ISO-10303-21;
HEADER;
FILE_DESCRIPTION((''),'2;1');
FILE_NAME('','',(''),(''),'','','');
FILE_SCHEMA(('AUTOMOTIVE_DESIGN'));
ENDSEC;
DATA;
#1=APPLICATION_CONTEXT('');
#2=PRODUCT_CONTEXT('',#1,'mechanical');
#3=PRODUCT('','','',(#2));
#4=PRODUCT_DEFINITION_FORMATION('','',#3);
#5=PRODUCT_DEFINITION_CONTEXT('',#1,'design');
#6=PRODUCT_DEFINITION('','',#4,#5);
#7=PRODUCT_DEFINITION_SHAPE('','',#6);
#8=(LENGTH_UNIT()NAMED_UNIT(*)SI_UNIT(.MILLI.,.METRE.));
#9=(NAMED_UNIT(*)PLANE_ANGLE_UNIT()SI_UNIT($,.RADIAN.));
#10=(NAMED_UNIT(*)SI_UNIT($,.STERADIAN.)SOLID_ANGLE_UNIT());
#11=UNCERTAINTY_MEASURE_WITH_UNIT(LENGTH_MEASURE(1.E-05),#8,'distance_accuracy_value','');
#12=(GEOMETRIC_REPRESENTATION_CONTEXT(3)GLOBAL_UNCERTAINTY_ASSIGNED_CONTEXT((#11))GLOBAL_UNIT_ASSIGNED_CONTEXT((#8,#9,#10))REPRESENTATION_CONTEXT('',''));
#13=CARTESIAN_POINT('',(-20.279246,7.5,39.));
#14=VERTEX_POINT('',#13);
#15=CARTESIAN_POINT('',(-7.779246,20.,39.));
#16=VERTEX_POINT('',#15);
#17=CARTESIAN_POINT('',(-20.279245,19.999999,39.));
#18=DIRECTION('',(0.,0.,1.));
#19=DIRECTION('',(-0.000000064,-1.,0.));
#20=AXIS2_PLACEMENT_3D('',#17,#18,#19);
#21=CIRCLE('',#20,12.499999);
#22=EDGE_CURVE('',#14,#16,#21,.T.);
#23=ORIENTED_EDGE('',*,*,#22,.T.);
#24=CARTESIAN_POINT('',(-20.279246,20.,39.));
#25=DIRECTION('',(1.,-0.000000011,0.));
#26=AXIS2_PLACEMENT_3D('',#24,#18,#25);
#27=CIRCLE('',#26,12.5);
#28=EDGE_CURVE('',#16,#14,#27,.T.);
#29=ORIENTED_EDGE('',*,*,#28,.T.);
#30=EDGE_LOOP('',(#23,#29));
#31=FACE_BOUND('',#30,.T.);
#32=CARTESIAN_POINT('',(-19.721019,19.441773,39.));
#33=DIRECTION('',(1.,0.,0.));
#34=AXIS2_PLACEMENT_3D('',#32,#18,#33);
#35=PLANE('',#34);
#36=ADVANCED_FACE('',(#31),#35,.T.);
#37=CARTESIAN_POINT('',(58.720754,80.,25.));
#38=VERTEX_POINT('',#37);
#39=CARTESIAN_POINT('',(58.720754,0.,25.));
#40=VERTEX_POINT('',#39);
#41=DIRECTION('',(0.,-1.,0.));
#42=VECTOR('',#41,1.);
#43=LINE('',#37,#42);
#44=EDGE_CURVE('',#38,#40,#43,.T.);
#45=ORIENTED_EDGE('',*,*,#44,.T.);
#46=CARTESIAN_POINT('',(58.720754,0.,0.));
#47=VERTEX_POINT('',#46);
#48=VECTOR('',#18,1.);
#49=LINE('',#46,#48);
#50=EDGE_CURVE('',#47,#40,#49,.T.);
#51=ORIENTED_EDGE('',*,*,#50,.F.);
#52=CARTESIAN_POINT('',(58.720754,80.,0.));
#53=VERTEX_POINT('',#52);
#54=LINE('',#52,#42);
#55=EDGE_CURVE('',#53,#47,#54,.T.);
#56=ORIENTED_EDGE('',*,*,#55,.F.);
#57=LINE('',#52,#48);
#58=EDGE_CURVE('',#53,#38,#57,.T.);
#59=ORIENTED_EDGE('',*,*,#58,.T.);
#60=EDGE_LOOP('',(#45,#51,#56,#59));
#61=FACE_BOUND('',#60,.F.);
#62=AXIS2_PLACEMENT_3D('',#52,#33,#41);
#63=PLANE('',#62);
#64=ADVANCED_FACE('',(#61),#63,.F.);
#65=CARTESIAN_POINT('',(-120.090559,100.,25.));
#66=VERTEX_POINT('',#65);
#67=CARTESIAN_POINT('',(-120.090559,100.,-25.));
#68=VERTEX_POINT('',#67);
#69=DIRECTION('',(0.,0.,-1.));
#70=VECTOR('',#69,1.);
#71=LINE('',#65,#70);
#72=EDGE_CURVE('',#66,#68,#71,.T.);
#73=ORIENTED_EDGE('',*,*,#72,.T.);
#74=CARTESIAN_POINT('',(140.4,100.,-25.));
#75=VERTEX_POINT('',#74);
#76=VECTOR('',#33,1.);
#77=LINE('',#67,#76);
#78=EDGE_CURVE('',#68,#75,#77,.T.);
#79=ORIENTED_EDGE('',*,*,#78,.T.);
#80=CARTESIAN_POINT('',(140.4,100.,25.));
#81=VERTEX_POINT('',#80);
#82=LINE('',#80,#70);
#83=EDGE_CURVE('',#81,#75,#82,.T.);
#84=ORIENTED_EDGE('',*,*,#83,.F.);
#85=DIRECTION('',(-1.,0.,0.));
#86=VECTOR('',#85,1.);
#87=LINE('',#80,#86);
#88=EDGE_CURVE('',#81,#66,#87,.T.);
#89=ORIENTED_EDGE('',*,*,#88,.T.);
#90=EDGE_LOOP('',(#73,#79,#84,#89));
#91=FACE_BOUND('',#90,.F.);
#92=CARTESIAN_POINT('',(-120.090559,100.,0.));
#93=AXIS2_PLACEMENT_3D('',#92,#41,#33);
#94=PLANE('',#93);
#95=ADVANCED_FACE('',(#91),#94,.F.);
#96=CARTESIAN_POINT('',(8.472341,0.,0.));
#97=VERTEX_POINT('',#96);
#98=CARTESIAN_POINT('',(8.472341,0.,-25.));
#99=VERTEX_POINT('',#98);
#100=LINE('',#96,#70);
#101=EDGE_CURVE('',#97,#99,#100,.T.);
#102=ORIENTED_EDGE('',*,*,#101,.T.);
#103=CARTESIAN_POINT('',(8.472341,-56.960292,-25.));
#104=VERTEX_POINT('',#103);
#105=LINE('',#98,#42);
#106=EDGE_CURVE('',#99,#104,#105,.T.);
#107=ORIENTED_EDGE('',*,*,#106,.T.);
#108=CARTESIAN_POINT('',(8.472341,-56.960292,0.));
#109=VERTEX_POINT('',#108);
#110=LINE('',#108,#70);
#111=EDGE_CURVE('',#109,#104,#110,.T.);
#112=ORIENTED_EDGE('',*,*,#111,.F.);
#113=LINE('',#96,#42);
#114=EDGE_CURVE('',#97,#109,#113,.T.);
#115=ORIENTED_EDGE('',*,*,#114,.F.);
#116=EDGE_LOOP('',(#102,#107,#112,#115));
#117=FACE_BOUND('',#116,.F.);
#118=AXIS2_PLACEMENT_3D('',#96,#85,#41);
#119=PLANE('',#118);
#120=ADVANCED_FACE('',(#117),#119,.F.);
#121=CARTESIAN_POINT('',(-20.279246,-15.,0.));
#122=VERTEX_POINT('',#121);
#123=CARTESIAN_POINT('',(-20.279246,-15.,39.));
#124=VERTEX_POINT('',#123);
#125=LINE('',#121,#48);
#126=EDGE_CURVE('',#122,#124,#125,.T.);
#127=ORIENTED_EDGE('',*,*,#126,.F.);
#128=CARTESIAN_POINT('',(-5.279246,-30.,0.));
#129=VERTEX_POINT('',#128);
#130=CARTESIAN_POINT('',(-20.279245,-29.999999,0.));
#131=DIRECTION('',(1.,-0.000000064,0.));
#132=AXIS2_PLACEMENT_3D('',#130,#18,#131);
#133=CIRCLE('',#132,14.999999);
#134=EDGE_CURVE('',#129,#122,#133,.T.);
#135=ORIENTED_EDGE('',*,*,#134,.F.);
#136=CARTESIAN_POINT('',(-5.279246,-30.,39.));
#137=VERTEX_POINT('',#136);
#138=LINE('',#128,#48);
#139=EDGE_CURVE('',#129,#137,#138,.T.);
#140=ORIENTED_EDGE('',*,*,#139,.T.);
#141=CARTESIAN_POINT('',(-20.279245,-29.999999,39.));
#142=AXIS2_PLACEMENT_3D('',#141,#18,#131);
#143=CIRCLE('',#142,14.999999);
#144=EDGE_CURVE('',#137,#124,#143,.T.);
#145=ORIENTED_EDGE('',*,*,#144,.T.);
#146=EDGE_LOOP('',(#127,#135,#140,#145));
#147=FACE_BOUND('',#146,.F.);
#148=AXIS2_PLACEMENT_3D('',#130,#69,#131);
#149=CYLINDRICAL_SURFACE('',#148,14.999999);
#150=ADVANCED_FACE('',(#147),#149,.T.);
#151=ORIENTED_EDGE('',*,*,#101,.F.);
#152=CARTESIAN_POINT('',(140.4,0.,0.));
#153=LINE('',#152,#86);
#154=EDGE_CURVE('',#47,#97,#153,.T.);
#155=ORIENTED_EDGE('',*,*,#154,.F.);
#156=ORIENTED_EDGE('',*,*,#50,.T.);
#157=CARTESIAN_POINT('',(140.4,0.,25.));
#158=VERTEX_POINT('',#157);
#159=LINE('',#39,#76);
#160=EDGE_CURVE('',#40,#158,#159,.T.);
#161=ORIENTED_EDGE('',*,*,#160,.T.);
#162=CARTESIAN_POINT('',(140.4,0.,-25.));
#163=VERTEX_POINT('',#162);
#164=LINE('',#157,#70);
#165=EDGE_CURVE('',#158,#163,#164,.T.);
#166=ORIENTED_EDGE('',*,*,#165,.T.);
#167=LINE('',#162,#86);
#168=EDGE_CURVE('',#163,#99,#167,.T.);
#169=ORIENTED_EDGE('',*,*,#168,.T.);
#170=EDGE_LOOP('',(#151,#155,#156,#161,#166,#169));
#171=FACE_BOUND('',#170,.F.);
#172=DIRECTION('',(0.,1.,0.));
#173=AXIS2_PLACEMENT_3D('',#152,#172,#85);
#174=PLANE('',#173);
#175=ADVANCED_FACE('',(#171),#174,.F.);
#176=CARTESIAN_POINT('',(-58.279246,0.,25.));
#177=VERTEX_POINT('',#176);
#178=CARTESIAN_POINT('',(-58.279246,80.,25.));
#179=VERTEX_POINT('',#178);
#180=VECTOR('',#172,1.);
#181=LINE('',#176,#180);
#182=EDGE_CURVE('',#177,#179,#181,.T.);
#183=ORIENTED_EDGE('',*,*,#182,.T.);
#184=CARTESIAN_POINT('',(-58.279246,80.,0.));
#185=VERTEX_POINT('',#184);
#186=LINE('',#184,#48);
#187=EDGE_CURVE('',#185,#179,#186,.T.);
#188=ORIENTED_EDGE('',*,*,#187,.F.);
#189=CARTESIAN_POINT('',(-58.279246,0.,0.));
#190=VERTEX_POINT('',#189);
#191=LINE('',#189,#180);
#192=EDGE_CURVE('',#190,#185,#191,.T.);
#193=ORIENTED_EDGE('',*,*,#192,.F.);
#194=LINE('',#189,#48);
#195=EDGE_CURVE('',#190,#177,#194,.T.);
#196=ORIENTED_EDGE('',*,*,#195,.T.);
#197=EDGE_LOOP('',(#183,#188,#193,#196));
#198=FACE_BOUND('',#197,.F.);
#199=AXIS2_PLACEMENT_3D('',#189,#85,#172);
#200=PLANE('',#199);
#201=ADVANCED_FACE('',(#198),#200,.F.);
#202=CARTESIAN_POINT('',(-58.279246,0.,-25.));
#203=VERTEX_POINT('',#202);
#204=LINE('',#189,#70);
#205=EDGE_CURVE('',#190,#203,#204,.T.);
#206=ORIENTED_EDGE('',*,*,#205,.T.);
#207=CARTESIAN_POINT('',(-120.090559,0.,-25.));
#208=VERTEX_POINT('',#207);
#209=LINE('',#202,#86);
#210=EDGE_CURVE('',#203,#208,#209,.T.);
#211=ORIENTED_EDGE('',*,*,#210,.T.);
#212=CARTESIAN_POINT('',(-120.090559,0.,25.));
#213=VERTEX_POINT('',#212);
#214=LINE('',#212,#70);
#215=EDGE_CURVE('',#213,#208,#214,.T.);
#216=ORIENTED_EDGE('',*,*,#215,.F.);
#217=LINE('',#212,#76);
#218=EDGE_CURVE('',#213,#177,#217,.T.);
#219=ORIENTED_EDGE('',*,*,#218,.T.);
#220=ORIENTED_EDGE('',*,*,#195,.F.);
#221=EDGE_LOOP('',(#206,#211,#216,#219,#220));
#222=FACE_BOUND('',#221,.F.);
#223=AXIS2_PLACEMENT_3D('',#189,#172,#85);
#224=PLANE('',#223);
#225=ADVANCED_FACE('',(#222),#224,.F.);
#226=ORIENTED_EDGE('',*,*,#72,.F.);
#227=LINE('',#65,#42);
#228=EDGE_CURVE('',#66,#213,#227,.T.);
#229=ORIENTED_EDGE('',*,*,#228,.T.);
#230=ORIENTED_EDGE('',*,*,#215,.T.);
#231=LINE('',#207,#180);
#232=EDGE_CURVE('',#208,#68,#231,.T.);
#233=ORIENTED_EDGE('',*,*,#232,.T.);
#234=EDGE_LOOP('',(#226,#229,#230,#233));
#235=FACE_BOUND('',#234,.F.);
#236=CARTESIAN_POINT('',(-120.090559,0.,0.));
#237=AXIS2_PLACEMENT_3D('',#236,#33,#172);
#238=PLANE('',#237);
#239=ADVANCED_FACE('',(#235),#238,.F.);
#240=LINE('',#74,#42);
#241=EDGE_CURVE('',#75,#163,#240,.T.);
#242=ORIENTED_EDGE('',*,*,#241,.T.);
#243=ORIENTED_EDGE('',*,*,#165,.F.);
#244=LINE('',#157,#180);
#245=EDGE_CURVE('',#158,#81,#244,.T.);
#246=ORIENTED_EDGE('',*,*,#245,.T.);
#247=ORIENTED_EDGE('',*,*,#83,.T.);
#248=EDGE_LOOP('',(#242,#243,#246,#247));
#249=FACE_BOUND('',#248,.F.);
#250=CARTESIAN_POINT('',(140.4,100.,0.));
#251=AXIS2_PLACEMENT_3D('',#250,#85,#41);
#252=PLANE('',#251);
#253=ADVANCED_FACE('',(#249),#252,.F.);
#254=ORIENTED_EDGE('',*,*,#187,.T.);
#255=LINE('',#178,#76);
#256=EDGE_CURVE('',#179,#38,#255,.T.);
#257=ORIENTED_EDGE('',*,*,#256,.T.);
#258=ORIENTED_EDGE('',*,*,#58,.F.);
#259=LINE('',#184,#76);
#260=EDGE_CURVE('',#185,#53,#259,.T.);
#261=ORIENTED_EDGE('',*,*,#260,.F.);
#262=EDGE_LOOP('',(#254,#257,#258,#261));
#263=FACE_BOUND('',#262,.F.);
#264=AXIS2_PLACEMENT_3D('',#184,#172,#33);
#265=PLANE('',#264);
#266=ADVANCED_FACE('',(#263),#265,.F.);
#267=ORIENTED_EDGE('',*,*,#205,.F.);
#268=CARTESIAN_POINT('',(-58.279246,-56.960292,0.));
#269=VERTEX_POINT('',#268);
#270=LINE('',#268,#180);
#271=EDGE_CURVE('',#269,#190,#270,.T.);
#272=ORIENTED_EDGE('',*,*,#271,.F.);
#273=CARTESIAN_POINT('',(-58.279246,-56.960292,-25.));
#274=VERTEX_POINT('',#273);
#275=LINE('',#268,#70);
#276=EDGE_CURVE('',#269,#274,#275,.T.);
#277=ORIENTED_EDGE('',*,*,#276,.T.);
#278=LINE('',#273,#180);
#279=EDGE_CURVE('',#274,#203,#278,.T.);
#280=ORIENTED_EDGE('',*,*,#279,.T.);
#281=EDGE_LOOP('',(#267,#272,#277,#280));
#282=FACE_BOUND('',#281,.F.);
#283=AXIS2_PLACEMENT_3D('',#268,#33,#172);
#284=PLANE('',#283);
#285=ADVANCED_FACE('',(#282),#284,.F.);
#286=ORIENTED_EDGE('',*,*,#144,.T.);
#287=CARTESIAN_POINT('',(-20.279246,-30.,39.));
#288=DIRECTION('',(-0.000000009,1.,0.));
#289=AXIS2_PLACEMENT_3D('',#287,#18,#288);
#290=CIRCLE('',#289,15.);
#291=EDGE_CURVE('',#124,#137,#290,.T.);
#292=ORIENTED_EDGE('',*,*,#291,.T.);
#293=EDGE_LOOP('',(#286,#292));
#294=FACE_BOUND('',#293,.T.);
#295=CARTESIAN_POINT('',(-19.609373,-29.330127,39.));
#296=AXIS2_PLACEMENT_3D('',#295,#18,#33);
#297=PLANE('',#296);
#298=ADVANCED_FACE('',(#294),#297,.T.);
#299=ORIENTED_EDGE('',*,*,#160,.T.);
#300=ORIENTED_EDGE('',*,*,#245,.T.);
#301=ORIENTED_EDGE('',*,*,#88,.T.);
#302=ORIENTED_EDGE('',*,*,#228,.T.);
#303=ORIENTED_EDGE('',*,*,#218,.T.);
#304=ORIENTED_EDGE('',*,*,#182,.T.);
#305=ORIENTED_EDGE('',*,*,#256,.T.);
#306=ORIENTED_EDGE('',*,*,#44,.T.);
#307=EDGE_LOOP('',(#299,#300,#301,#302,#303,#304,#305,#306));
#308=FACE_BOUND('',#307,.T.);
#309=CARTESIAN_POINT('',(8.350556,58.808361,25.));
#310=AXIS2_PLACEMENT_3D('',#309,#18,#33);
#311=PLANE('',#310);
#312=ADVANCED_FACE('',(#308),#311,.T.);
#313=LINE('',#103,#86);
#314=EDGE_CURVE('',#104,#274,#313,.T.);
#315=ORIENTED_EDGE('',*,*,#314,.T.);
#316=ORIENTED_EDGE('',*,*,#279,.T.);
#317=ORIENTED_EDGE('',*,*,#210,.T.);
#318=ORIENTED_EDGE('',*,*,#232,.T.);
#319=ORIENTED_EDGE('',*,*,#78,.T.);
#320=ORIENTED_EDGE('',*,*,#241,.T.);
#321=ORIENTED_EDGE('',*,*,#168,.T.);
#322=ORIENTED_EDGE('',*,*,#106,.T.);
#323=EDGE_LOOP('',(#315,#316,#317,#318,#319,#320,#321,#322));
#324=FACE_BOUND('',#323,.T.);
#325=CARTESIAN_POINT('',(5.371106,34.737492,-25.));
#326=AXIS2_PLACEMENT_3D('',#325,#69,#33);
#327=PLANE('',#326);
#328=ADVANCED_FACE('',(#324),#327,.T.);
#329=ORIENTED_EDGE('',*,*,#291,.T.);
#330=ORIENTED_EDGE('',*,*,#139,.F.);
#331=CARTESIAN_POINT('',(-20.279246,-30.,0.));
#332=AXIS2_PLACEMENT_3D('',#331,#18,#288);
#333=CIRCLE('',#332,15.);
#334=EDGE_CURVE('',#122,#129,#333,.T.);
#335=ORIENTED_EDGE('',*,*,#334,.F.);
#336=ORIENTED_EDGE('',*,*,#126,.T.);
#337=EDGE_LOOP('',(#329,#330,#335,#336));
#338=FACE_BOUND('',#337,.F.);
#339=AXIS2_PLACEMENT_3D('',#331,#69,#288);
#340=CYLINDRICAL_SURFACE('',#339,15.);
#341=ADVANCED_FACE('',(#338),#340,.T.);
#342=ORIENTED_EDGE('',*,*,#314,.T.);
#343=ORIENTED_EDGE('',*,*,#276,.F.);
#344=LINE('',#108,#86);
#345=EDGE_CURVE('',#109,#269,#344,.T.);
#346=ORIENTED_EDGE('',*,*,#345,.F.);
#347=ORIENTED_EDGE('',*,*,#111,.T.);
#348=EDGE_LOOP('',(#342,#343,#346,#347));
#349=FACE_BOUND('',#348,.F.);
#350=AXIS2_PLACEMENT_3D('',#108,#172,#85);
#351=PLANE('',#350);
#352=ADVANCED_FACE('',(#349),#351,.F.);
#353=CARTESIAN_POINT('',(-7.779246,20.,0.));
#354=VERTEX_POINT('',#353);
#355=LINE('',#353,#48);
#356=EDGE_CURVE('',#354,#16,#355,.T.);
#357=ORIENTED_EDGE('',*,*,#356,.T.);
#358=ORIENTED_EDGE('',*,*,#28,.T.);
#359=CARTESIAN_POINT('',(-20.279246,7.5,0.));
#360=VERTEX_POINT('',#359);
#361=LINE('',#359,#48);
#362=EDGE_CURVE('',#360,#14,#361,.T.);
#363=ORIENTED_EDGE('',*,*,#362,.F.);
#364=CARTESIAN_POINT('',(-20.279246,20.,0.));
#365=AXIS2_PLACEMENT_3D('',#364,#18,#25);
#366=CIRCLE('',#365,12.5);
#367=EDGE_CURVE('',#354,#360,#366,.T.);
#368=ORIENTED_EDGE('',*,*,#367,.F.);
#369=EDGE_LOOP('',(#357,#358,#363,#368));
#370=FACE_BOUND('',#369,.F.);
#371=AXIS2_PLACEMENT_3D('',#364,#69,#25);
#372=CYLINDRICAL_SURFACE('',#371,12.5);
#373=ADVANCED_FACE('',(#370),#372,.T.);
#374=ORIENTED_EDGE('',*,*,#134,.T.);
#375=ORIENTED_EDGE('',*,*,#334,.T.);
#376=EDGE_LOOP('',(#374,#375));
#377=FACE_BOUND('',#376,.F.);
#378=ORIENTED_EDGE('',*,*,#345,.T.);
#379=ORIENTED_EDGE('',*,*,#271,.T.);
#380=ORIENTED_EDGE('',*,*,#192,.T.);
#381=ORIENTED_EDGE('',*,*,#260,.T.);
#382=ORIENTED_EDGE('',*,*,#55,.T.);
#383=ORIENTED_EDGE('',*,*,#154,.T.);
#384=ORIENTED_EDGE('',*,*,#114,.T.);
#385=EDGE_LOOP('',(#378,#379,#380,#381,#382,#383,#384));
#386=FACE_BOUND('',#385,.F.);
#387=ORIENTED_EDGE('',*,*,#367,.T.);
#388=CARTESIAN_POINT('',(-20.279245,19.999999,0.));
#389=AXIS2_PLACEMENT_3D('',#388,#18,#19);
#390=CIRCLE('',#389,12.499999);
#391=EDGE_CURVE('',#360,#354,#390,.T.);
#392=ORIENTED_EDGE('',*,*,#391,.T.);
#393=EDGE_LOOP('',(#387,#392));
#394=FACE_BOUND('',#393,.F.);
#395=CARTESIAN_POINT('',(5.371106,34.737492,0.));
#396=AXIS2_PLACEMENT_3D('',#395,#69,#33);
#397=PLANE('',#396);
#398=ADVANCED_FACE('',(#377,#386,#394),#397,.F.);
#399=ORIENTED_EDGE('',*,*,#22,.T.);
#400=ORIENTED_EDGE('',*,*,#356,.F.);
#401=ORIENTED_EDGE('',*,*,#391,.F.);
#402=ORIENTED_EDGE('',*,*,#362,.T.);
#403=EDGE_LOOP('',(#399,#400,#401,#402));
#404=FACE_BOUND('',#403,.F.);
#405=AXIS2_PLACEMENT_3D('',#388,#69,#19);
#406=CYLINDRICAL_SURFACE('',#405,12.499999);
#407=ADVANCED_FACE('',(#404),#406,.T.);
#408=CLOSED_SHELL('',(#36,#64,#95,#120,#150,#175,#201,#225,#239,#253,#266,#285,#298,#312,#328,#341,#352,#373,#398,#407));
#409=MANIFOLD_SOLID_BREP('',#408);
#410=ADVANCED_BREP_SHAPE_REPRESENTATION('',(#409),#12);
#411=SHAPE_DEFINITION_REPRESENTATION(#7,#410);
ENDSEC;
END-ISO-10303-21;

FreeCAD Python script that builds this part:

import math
import FreeCAD as App
import Part
import Sketcher

V = App.Vector
Q = App.Units.Quantity


def add_polygon(sketch, points):
    """Adds a closed chain of lines whose ends are joined by coincident constraints."""
    first, n = sketch.GeometryCount, len(points)
    for a, b in zip(points, points[1:] + points[:1]):
        sketch.addGeometry(Part.LineSegment(App.Vector(*a, 0), App.Vector(*b, 0)), False)
    for i in range(n):
        sketch.addConstraint(Sketcher.Constraint("Coincident", first + i, 2, first + (i + 1) % n, 1))

doc = App.newDocument("Part")
body = doc.addObject("PartDesign::Body", "Body")

# Sketch on XY plane
sketch1 = body.newObject("Sketcher::SketchObject", "Sketch")
sketch1.AttachmentSupport = (doc.getObject("XY_Plane"), [""])
sketch1.MapMode = "FlatFace"
add_polygon(sketch1, [(-120, 100), (-120, 0), (-58, 0), (-58, 80), (59, 80), (59, 0), (140, 0), (140, 100)])  # lines 0-7
sketch1.addConstraint([
    Sketcher.Constraint("Vertical", 0),
    Sketcher.Constraint("Horizontal", 1),
    Sketcher.Constraint("Vertical", 2),
    Sketcher.Constraint("Horizontal", 3),
    Sketcher.Constraint("Vertical", 4),
    Sketcher.Constraint("Horizontal", 5),
    Sketcher.Constraint("Vertical", 6),
    Sketcher.Constraint("Horizontal", 7),
    Sketcher.Constraint("PointOnObject", 0, 2, -1),
    Sketcher.Constraint("PointOnObject", 4, 2, -1),
    Sketcher.Constraint("DistanceX", 3, 1, 3, 2, Q("117 mm")),
    Sketcher.Constraint("DistanceY", 0, 2, 0, 1, Q("100 mm")),
    Sketcher.Constraint("DistanceY", 2, 1, 2, 2, Q("80 mm")),
    Sketcher.Constraint("DistanceX", -1, 1, 5, 2, Q("140.4 mm")),
    Sketcher.Constraint("DistanceX", 7, 2, 7, 1, Q("260.490559 mm")),
    Sketcher.Constraint("DistanceX", 1, 1, 1, 2, Q("61.811313 mm")),
])
pad1 = body.newObject("PartDesign::Pad", "Pad")
pad1.Profile = sketch1
pad1.Length = 25

# Sketch on XY plane
sketch2 = body.newObject("Sketcher::SketchObject", "Sketch001")
sketch2.AttachmentSupport = (doc.getObject("XY_Plane"), [""])
sketch2.MapMode = "FlatFace"
add_polygon(sketch2, [(-58, 0), (-120, 0), (-120, 100), (140, 100), (140, 0), (8, 0), (8, -57), (-58, -57)])  # lines 0-7
sketch2.addConstraint([
    Sketcher.Constraint("Horizontal", 0),
    Sketcher.Constraint("Vertical", 1),
    Sketcher.Constraint("Horizontal", 2),
    Sketcher.Constraint("Vertical", 3),
    Sketcher.Constraint("Horizontal", 4),
    Sketcher.Constraint("Vertical", 5),
    Sketcher.Constraint("Horizontal", 6),
    Sketcher.Constraint("Vertical", 7),
    Sketcher.Constraint("PointOnObject", 0, 2, -1),
    Sketcher.Constraint("PointOnObject", 3, 2, -1),
    Sketcher.Constraint("DistanceY", 1, 1, 1, 2, Q("100 mm")),
    Sketcher.Constraint("DistanceX", -1, 1, 2, 2, Q("140.4 mm")),
    Sketcher.Constraint("DistanceX", 2, 1, 2, 2, Q("260.490559 mm")),
    Sketcher.Constraint("DistanceX", 4, 2, 4, 1, Q("131.927659 mm")),
    Sketcher.Constraint("DistanceX", 0, 2, 0, 1, Q("61.811313 mm")),
    Sketcher.Constraint("DistanceY", 5, 2, 5, 1, Q("56.960292 mm")),
])
pad2 = body.newObject("PartDesign::Pad", "Pad001")
pad2.Profile = sketch2
pad2.Length = 25
pad2.Reversed = True

# Sketch on XY plane
sketch3 = body.newObject("Sketcher::SketchObject", "Sketch002")
sketch3.AttachmentSupport = (doc.getObject("XY_Plane"), [""])
sketch3.MapMode = "FlatFace"
sketch3.addGeometry([
    Part.ArcOfCircle(Part.Circle(V(-20, 20, 0), V(0, 0, 1), 12), math.radians(-90), math.radians(0)),
    Part.ArcOfCircle(Part.Circle(V(-20, 20, 0), V(0, 0, 1), 13), math.radians(0), math.radians(270)),
    Part.ArcOfCircle(Part.Circle(V(-20, -30, 0), V(0, 0, 1), 15), math.radians(0), math.radians(90)),
    Part.ArcOfCircle(Part.Circle(V(-20, -30, 0), V(0, 0, 1), 15), math.radians(90), math.radians(360)),
], False)
sketch3.addConstraint([
    Sketcher.Constraint("Tangent", 0, 1, 1, 2),
    Sketcher.Constraint("Coincident", 1, 1, 0, 2),
    Sketcher.Constraint("Tangent", 2, 1, 3, 2),
    Sketcher.Constraint("Coincident", 3, 1, 2, 2),
    Sketcher.Constraint("Horizontal", 0, 3, 1, 1),
    Sketcher.Constraint("Horizontal", 3, 3, 2, 1),
    Sketcher.Constraint("Vertical", 1, 3, 2, 3),
    Sketcher.Constraint("Vertical", 3, 3, 0, 1),
    Sketcher.Constraint("Vertical", 0, 1, 3, 1),
    Sketcher.Constraint("Radius", 2, Q("14.999999 mm")),
    Sketcher.Constraint("Radius", 0, Q("12.499999 mm")),
    Sketcher.Constraint("DistanceY", -1, 1, 0, 3, Q("19.999999 mm")),
    Sketcher.Constraint("DistanceY", 2, 3, -1, 1, Q("29.999999 mm")),
    Sketcher.Constraint("DistanceX", 0, 3, -1, 1, Q("20.279245 mm")),
])
pad3 = body.newObject("PartDesign::Pad", "Pad002")
pad3.Profile = sketch3
pad3.Length = 39

doc.recompute()
